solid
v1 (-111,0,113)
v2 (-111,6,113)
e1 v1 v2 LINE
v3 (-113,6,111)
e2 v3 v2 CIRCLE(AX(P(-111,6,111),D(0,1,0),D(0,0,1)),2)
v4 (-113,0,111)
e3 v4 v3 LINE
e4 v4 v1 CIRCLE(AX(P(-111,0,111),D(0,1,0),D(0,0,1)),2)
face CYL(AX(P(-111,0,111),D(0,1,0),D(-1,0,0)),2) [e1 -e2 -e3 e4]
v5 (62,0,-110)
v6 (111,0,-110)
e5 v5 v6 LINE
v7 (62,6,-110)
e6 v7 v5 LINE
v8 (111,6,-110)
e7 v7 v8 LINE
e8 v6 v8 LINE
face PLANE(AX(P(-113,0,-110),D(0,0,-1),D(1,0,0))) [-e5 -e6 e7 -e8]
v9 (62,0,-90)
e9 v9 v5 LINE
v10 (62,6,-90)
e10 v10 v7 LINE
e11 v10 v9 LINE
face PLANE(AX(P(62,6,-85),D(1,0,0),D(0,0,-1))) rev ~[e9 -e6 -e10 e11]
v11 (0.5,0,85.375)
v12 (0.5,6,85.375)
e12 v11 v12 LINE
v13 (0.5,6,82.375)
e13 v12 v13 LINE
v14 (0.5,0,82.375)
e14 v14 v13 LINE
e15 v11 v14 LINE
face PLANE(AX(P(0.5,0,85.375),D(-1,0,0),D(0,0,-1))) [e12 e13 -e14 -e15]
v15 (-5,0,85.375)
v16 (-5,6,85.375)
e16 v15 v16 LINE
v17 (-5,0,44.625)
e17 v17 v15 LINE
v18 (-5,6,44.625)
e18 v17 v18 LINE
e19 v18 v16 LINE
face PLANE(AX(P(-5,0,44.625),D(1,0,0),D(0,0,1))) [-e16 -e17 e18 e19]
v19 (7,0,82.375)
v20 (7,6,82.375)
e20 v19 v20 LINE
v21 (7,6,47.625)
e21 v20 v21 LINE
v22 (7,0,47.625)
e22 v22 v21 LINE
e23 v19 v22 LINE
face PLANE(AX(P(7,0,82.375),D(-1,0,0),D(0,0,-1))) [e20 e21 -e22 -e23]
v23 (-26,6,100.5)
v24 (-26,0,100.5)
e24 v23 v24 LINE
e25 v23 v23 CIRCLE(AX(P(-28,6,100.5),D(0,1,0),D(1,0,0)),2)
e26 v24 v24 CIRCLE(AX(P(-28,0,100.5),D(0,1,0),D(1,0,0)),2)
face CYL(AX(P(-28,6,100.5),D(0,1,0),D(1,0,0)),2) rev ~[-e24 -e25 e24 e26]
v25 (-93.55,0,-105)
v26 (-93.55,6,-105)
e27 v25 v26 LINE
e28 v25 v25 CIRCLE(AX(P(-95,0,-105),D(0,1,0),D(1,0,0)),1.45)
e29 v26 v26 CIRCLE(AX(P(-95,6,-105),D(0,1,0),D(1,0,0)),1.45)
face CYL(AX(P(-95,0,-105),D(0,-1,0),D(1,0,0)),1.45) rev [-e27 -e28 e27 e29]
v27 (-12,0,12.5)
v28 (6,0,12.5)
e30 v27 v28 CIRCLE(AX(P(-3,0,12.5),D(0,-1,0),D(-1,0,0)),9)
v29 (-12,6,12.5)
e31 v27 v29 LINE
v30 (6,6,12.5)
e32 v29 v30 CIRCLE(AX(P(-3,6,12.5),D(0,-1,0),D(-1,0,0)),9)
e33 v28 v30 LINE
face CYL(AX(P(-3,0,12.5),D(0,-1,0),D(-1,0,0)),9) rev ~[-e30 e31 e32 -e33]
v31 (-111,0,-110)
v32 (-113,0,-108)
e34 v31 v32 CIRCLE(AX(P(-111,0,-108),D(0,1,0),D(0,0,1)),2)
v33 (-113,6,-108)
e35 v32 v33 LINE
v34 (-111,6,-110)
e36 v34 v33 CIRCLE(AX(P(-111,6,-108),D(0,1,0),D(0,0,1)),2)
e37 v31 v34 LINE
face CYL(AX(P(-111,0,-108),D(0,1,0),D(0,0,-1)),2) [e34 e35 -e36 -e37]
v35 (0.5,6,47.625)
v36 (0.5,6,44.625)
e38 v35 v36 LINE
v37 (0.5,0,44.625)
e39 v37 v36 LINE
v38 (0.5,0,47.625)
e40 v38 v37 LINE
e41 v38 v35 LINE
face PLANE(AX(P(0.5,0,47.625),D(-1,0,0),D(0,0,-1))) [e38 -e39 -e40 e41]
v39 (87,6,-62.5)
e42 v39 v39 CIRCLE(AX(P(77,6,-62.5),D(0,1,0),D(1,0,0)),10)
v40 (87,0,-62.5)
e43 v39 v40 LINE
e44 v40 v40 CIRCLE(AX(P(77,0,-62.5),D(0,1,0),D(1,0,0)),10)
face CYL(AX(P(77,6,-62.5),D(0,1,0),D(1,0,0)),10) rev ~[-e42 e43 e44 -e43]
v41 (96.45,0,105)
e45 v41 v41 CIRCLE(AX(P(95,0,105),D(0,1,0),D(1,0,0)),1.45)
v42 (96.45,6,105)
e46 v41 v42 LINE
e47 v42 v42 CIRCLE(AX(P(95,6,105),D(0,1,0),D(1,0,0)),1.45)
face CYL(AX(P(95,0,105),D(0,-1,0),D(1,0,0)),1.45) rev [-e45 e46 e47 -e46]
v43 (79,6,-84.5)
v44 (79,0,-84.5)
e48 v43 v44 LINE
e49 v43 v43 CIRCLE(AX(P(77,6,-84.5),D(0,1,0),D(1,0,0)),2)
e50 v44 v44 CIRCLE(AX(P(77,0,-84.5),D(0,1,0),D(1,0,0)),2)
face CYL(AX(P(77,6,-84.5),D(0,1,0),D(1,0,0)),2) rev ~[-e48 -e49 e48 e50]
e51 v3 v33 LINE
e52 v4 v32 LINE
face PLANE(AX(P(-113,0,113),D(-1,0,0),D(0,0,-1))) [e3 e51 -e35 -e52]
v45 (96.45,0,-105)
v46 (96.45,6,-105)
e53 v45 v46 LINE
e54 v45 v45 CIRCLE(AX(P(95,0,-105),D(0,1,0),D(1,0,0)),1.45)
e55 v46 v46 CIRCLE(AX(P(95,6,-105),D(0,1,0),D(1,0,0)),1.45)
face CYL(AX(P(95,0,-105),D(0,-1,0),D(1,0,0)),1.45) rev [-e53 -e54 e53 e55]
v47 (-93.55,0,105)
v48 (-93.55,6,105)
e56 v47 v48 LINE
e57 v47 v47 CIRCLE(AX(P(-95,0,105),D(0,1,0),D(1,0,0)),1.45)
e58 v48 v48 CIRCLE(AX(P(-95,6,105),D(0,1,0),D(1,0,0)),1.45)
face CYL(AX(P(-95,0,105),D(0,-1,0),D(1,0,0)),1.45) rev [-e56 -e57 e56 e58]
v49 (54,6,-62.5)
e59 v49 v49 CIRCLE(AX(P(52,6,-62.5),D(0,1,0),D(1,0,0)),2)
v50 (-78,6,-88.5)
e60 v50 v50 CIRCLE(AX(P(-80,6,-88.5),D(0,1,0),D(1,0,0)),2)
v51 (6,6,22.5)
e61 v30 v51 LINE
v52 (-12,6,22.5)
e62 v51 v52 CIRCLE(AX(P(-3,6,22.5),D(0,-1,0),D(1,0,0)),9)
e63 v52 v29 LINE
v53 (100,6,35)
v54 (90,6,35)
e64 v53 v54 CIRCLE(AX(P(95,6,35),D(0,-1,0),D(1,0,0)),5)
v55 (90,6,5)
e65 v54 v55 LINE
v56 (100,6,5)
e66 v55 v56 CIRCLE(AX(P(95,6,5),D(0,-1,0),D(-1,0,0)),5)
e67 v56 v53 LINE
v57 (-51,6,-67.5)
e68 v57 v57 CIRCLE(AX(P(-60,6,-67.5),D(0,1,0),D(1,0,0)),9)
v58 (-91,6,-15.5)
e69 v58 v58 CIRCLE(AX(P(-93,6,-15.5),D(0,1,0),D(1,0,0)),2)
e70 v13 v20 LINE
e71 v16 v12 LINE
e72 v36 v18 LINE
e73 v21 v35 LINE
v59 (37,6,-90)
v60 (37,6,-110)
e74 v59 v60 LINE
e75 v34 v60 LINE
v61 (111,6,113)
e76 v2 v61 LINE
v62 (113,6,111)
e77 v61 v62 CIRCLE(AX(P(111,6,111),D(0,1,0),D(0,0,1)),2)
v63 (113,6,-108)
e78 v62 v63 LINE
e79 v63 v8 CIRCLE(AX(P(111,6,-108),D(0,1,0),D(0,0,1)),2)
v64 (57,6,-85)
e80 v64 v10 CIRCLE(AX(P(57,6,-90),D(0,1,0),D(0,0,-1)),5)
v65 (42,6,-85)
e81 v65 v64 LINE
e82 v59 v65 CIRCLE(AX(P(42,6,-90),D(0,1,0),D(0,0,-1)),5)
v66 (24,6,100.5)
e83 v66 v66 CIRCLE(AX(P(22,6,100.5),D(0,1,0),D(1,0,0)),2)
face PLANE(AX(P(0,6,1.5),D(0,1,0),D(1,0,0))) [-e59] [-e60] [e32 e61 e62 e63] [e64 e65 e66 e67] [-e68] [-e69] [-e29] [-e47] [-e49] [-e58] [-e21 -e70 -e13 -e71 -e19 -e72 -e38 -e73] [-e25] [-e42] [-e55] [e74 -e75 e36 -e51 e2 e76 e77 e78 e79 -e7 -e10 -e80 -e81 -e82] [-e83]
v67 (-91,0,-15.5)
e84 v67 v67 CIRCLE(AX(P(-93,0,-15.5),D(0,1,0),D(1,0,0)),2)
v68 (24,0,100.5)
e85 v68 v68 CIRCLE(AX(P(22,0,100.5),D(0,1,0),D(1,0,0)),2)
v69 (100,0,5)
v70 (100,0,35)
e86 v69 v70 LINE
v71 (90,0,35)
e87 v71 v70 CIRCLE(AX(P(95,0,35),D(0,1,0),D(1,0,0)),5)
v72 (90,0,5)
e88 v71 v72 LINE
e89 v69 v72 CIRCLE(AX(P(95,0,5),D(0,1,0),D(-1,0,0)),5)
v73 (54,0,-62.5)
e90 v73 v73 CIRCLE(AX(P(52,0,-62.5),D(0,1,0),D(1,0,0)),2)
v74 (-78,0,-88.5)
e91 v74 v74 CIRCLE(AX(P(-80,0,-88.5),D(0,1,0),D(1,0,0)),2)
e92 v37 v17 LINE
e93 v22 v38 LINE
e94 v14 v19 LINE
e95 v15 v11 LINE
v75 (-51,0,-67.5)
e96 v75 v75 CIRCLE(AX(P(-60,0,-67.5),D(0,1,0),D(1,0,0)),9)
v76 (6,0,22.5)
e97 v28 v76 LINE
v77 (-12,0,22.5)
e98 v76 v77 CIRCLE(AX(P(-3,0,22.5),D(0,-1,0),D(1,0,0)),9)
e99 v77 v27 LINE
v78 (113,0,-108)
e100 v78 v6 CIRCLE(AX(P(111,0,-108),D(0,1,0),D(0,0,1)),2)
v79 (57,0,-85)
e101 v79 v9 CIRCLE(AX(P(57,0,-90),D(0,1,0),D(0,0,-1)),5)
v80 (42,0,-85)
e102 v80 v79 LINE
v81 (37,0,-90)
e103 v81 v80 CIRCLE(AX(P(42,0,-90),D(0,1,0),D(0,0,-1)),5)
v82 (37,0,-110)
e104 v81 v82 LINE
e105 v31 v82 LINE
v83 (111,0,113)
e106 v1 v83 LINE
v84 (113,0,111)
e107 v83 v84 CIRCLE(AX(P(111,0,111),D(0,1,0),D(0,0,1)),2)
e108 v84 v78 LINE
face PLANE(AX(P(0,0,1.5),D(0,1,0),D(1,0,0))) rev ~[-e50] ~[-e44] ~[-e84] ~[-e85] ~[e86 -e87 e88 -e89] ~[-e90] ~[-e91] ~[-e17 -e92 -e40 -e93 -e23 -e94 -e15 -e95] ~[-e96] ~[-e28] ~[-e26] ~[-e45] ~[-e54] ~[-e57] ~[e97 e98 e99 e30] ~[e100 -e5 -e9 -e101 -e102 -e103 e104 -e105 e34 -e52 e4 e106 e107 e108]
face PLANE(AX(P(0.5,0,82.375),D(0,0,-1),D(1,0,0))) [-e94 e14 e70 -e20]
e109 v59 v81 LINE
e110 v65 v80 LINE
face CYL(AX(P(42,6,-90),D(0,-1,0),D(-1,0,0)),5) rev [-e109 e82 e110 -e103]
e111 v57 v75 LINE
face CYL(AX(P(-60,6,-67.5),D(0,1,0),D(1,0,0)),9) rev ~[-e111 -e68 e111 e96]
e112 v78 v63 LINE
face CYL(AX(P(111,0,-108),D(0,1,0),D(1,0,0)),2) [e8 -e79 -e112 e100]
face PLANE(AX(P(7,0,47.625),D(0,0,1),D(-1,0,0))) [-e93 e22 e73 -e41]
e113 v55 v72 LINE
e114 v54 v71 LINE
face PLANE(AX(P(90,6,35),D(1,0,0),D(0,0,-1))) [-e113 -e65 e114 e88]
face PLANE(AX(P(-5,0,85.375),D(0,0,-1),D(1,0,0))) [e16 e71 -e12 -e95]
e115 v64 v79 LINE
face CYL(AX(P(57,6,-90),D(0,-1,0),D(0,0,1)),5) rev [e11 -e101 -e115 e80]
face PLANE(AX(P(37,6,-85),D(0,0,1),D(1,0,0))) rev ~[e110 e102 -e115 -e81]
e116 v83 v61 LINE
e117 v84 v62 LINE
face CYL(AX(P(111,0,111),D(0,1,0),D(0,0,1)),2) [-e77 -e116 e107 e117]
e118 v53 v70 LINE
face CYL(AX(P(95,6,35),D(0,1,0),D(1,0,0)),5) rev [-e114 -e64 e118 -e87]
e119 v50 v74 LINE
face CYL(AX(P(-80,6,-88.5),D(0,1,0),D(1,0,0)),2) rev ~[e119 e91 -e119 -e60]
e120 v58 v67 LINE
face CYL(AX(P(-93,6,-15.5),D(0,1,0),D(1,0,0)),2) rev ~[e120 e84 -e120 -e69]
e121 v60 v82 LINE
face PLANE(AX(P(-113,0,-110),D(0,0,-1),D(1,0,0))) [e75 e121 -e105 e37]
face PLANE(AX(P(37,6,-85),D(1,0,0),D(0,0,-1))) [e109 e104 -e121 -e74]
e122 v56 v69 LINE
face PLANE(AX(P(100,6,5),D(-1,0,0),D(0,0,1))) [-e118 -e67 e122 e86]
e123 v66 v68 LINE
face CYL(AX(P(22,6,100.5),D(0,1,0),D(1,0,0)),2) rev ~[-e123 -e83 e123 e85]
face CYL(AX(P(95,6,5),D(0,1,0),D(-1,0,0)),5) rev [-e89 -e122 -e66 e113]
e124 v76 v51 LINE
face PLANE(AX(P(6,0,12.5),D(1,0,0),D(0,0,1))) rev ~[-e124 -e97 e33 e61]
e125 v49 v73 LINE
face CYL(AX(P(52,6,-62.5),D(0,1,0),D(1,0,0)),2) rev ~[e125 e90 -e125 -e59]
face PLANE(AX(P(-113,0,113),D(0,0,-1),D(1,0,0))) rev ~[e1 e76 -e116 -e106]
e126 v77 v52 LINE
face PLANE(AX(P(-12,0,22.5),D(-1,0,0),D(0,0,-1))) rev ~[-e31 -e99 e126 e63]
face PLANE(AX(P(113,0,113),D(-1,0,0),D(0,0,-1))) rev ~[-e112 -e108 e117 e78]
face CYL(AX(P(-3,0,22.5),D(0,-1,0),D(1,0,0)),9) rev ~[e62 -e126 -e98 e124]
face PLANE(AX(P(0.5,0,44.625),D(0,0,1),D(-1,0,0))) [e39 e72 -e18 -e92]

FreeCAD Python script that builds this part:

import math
import FreeCAD as App
import Part
import Sketcher
from FreeCAD import Vector


def edges_at(feature, points):
    """Names of the edges that pass closest to the given points."""
    edges = feature.Shape.Edges
    near = lambda p: min(range(len(edges)), key=lambda i: edges[i].distToShape(Part.Vertex(*p))[0])
    return sorted({f"Edge{near(p) + 1}" for p in points})


def add_polygon(sketch, points):
    """Adds a closed chain of lines whose ends are joined by coincident constraints."""
    first, n = sketch.GeometryCount, len(points)
    for a, b in zip(points, points[1:] + points[:1]):
        sketch.addGeometry(Part.LineSegment(App.Vector(*a, 0), App.Vector(*b, 0)), False)
    for i in range(n):
        sketch.addConstraint(Sketcher.Constraint("Coincident", first + i, 2, first + (i + 1) % n, 1))

doc = App.newDocument("Part")
body = doc.addObject("PartDesign::Body", "Body")

# Sketch on XZ plane
sketch1 = body.newObject("Sketcher::SketchObject", "Sketch")
sketch1.AttachmentSupport = (doc.getObject("XZ_Plane"), [""])
sketch1.MapMode = "FlatFace"
add_polygon(sketch1, [(-113, -110), (-113, 113), (113, 113), (113, -110)])  # lines 0-3
sketch1.addGeometry(Part.Circle(Vector(-95, 105, 0), Vector(0, 0, 1), 1.4), False)  # 4
sketch1.addGeometry(Part.ArcOfCircle(Part.Circle(Vector(-3, 12.5, 0), Vector(0, 0, 1), 9), math.radians(180), math.radians(360)), False)  # 5
sketch1.addGeometry(Part.LineSegment(Vector(6, 12.5, 0), Vector(6, 22.5, 0)), False)  # 6
sketch1.addGeometry(Part.ArcOfCircle(Part.Circle(Vector(-3, 22.5, 0), Vector(0, 0, 1), 9), math.radians(0), math.radians(180)), False)  # 7
sketch1.addGeometry(Part.LineSegment(Vector(-12, 22.5, 0), Vector(-12, 12.5, 0)), False)  # 8
add_polygon(sketch1, [(0.5, 85.4), (-5, 85.4), (-5, 44.6), (0.5, 44.6), (0.5, 47.6), (7, 47.6), (7, 82.4), (0.5, 82.4)])  # lines 9-16
sketch1.addGeometry(Part.Circle(Vector(95, 105, 0), Vector(0, 0, 1), 1.4), False)  # 17
sketch1.addGeometry(Part.Circle(Vector(-95, -105, 0), Vector(0, 0, 1), 1.4), False)  # 18
sketch1.addGeometry(Part.Circle(Vector(95, -105, 0), Vector(0, 0, 1), 1.4), False)  # 19
sketch1.addConstraint([
    Sketcher.Constraint("Tangent", 5, 2, 6, 1),
    Sketcher.Constraint("Tangent", 6, 2, 7, 1),
    Sketcher.Constraint("Tangent", 7, 2, 8, 1),
    Sketcher.Constraint("Tangent", 8, 2, 5, 1),
    Sketcher.Constraint("Vertical", 0),
    Sketcher.Constraint("Horizontal", 1),
    Sketcher.Constraint("Vertical", 2),
    Sketcher.Constraint("Horizontal", 3),
    Sketcher.Constraint("Vertical", 6),
    Sketcher.Constraint("Vertical", 8),
    Sketcher.Constraint("Horizontal", 9),
    Sketcher.Constraint("Vertical", 10),
    Sketcher.Constraint("Horizontal", 11),
    Sketcher.Constraint("Vertical", 12),
    Sketcher.Constraint("Horizontal", 13),
    Sketcher.Constraint("Vertical", 14),
    Sketcher.Constraint("Horizontal", 15),
    Sketcher.Constraint("Vertical", 16),
    Sketcher.Constraint("Equal", 4, 17),
    Sketcher.Constraint("Equal", 17, 18),
    Sketcher.Constraint("Equal", 18, 19),
    Sketcher.Constraint("Symmetric", 17, 3, 18, 3, -1, 1),
    Sketcher.Constraint("Symmetric", 4, 3, 19, 3, -1, 1),
    Sketcher.Constraint("Symmetric", 4, 3, 17, 3, -2),
    Sketcher.Constraint("Vertical", 12, 2, 15, 2),
    Sketcher.Constraint("Equal", 12, 16),
    Sketcher.Constraint("Radius", 5, 9.0),
    Sketcher.Constraint("Diameter", 4, 2.9),
    Sketcher.Constraint("DistanceX", 1, 1, 1, 2, 226.0),
    Sketcher.Constraint("DistanceY", 0, 1, 0, 2, 223.0),
    Sketcher.Constraint("DistanceY", 6, 1, 6, 2, 10.0),
    Sketcher.Constraint("DistanceY", 12, 1, 12, 2, 3.0),
    Sketcher.Constraint("DistanceX", 9, 2, 9, 1, 5.5),
    Sketcher.Constraint("DistanceX", 13, 1, 13, 2, 6.5),
    Sketcher.Constraint("DistanceX", 4, 3, -1, 1, 95.0),
    Sketcher.Constraint("DistanceY", -1, 1, 4, 3, 105.0),
    Sketcher.Constraint("DistanceX", 5, 3, -1, 1, 3.0),
    Sketcher.Constraint("DistanceX", 0, 2, -1, 1, 113.0),
    Sketcher.Constraint("DistanceY", -1, 1, 0, 2, 113.0),
    Sketcher.Constraint("DistanceX", 9, 2, -1, 1, 5.0),
    Sketcher.Constraint("DistanceY", 10, 2, 10, 1, 40.75),
    Sketcher.Constraint("DistanceY", -1, 1, 5, 3, 12.5),
    Sketcher.Constraint("DistanceY", -1, 1, 9, 2, 85.375),
])
pad1 = body.newObject("PartDesign::Pad", "Pad")
pad1.Profile = sketch1
pad1.Length = 6
pad1.Reversed = True

# Sketch on XZ plane
sketch2 = body.newObject("Sketcher::SketchObject", "Sketch001")
sketch2.AttachmentSupport = (doc.getObject("XZ_Plane"), [""])
sketch2.MapMode = "FlatFace"
sketch2.AttachmentOffset = App.Placement(Vector(0, 0, -6), App.Rotation())
sketch2.addGeometry(Part.Circle(Vector(-28, 100.5, 0), Vector(0, 0, 1), 2), False)  # 0
sketch2.addGeometry(Part.Circle(Vector(22, 100.5, 0), Vector(0, 0, 1), 2), False)  # 1
sketch2.addGeometry(Part.Circle(Vector(-80, -88.5, 0), Vector(0, 0, 1), 2), False)  # 2
sketch2.addGeometry(Part.Circle(Vector(77, -84.5, 0), Vector(0, 0, 1), 2), False)  # 3
sketch2.addGeometry(Part.Circle(Vector(-93, -15.5, 0), Vector(0, 0, 1), 2), False)  # 4
sketch2.addGeometry(Part.Circle(Vector(52, -62.5, 0), Vector(0, 0, 1), 2), False)  # 5
sketch2.addGeometry(Part.Circle(Vector(-60, -67.5, 0), Vector(0, 0, 1), 9), False)  # 6
sketch2.addGeometry(Part.Circle(Vector(77, -62.5, 0), Vector(0, 0, 1), 10), False)  # 7
sketch2.addGeometry(Part.LineSegment(Vector(90, 5, 0), Vector(90, 35, 0)), False)  # 8
sketch2.addGeometry(Part.ArcOfCircle(Part.Circle(Vector(95, 35, 0), Vector(0, 0, 1), 5), math.radians(0), math.radians(180)), False)  # 9
sketch2.addGeometry(Part.LineSegment(Vector(100, 35, 0), Vector(100, 5, 0)), False)  # 10
sketch2.addGeometry(Part.ArcOfCircle(Part.Circle(Vector(95, 5, 0), Vector(0, 0, 1), 5), math.radians(180), math.radians(360)), False)  # 11
add_polygon(sketch2, [(37, -110), (37, -85), (62, -85), (62, -110)])  # lines 12-15
sketch2.addConstraint([
    Sketcher.Constraint("Tangent", 8, 2, 9, 2),
    Sketcher.Constraint("Tangent", 9, 1, 10, 1),
    Sketcher.Constraint("Tangent", 10, 2, 11, 2),
    Sketcher.Constraint("Tangent", 11, 1, 8, 1),
    Sketcher.Constraint("Vertical", 8),
    Sketcher.Constraint("Vertical", 10),
    Sketcher.Constraint("Vertical", 12),
    Sketcher.Constraint("Horizontal", 13),
    Sketcher.Constraint("Vertical", 14),
    Sketcher.Constraint("Horizontal", 15),
    Sketcher.Constraint("Equal", 0, 1),
    Sketcher.Constraint("Equal", 1, 2),
    Sketcher.Constraint("Equal", 2, 3),
    Sketcher.Constraint("Equal", 3, 4),
    Sketcher.Constraint("Equal", 4, 5),
    Sketcher.Constraint("Horizontal", 0, 3, 1, 3),
    Sketcher.Constraint("Horizontal", 5, 3, 7, 3),
    Sketcher.Constraint("Vertical", 3, 3, 7, 3),
    Sketcher.Constraint("Equal", 15, 12),
    Sketcher.Constraint("Diameter", 0, 4.0),
    Sketcher.Constraint("Diameter", 6, 18.0),
    Sketcher.Constraint("Diameter", 7, 20.0),
    Sketcher.Constraint("Radius", 9, 5.0),
    Sketcher.Constraint("DistanceX", 13, 1, 13, 2, 25.0),
    Sketcher.Constraint("DistanceY", 8, 1, 8, 2, 30.0),
    Sketcher.Constraint("DistanceX", 0, 3, -1, 1, 28.0),
    Sketcher.Constraint("DistanceX", -1, 1, 1, 3, 22.0),
    Sketcher.Constraint("DistanceX", 2, 3, -1, 1, 80.0),
    Sketcher.Constraint("DistanceX", -1, 1, 3, 3, 77.0),
    Sketcher.Constraint("DistanceX", 4, 3, -1, 1, 93.0),
    Sketcher.Constraint("DistanceX", -1, 1, 5, 3, 52.0),
    Sketcher.Constraint("DistanceX", 6, 3, -1, 1, 60.0),
    Sketcher.Constraint("DistanceX", -1, 1, 9, 3, 95.0),
    Sketcher.Constraint("DistanceY", -1, 1, 9, 3, 35.0),
    Sketcher.Constraint("DistanceX", -1, 1, 12, 2, 37.0),
    Sketcher.Constraint("DistanceY", 12, 2, -1, 1, 85.0),
    Sketcher.Constraint("DistanceY", 2, 3, 0, 3, 189.0),
    Sketcher.Constraint("DistanceY", 2, 3, 3, 3, 4.0),
    Sketcher.Constraint("DistanceY", 2, 3, 4, 3, 73.0),
    Sketcher.Constraint("DistanceY", 3, 3, 5, 3, 22.0),
    Sketcher.Constraint("DistanceY", 2, 3, 6, 3, 21.0),
    Sketcher.Constraint("DistanceY", -1, 1, 0, 3, 100.5),
])
pocket1 = body.newObject("PartDesign::Pocket", "Pocket")
pocket1.Profile = sketch2
pocket1.Type = "ThroughAll"
pocket1.Reversed = True
doc.recompute()

fillet = body.newObject("PartDesign::Fillet", "Fillet")
fillet.Base = (pocket1, edges_at(pocket1, [(62, 3, -85), (37, 3, -85)]))
fillet.Radius = 5
doc.recompute()

fillet2 = body.newObject("PartDesign::Fillet", "Fillet001")
fillet2.Base = (fillet, edges_at(fillet, [
    (-113, 3, -110),
    (113, 3, -110),
    (113, 3, 113),
    (-113, 3, 113),
]))
fillet2.Radius = 2

doc.recompute()
